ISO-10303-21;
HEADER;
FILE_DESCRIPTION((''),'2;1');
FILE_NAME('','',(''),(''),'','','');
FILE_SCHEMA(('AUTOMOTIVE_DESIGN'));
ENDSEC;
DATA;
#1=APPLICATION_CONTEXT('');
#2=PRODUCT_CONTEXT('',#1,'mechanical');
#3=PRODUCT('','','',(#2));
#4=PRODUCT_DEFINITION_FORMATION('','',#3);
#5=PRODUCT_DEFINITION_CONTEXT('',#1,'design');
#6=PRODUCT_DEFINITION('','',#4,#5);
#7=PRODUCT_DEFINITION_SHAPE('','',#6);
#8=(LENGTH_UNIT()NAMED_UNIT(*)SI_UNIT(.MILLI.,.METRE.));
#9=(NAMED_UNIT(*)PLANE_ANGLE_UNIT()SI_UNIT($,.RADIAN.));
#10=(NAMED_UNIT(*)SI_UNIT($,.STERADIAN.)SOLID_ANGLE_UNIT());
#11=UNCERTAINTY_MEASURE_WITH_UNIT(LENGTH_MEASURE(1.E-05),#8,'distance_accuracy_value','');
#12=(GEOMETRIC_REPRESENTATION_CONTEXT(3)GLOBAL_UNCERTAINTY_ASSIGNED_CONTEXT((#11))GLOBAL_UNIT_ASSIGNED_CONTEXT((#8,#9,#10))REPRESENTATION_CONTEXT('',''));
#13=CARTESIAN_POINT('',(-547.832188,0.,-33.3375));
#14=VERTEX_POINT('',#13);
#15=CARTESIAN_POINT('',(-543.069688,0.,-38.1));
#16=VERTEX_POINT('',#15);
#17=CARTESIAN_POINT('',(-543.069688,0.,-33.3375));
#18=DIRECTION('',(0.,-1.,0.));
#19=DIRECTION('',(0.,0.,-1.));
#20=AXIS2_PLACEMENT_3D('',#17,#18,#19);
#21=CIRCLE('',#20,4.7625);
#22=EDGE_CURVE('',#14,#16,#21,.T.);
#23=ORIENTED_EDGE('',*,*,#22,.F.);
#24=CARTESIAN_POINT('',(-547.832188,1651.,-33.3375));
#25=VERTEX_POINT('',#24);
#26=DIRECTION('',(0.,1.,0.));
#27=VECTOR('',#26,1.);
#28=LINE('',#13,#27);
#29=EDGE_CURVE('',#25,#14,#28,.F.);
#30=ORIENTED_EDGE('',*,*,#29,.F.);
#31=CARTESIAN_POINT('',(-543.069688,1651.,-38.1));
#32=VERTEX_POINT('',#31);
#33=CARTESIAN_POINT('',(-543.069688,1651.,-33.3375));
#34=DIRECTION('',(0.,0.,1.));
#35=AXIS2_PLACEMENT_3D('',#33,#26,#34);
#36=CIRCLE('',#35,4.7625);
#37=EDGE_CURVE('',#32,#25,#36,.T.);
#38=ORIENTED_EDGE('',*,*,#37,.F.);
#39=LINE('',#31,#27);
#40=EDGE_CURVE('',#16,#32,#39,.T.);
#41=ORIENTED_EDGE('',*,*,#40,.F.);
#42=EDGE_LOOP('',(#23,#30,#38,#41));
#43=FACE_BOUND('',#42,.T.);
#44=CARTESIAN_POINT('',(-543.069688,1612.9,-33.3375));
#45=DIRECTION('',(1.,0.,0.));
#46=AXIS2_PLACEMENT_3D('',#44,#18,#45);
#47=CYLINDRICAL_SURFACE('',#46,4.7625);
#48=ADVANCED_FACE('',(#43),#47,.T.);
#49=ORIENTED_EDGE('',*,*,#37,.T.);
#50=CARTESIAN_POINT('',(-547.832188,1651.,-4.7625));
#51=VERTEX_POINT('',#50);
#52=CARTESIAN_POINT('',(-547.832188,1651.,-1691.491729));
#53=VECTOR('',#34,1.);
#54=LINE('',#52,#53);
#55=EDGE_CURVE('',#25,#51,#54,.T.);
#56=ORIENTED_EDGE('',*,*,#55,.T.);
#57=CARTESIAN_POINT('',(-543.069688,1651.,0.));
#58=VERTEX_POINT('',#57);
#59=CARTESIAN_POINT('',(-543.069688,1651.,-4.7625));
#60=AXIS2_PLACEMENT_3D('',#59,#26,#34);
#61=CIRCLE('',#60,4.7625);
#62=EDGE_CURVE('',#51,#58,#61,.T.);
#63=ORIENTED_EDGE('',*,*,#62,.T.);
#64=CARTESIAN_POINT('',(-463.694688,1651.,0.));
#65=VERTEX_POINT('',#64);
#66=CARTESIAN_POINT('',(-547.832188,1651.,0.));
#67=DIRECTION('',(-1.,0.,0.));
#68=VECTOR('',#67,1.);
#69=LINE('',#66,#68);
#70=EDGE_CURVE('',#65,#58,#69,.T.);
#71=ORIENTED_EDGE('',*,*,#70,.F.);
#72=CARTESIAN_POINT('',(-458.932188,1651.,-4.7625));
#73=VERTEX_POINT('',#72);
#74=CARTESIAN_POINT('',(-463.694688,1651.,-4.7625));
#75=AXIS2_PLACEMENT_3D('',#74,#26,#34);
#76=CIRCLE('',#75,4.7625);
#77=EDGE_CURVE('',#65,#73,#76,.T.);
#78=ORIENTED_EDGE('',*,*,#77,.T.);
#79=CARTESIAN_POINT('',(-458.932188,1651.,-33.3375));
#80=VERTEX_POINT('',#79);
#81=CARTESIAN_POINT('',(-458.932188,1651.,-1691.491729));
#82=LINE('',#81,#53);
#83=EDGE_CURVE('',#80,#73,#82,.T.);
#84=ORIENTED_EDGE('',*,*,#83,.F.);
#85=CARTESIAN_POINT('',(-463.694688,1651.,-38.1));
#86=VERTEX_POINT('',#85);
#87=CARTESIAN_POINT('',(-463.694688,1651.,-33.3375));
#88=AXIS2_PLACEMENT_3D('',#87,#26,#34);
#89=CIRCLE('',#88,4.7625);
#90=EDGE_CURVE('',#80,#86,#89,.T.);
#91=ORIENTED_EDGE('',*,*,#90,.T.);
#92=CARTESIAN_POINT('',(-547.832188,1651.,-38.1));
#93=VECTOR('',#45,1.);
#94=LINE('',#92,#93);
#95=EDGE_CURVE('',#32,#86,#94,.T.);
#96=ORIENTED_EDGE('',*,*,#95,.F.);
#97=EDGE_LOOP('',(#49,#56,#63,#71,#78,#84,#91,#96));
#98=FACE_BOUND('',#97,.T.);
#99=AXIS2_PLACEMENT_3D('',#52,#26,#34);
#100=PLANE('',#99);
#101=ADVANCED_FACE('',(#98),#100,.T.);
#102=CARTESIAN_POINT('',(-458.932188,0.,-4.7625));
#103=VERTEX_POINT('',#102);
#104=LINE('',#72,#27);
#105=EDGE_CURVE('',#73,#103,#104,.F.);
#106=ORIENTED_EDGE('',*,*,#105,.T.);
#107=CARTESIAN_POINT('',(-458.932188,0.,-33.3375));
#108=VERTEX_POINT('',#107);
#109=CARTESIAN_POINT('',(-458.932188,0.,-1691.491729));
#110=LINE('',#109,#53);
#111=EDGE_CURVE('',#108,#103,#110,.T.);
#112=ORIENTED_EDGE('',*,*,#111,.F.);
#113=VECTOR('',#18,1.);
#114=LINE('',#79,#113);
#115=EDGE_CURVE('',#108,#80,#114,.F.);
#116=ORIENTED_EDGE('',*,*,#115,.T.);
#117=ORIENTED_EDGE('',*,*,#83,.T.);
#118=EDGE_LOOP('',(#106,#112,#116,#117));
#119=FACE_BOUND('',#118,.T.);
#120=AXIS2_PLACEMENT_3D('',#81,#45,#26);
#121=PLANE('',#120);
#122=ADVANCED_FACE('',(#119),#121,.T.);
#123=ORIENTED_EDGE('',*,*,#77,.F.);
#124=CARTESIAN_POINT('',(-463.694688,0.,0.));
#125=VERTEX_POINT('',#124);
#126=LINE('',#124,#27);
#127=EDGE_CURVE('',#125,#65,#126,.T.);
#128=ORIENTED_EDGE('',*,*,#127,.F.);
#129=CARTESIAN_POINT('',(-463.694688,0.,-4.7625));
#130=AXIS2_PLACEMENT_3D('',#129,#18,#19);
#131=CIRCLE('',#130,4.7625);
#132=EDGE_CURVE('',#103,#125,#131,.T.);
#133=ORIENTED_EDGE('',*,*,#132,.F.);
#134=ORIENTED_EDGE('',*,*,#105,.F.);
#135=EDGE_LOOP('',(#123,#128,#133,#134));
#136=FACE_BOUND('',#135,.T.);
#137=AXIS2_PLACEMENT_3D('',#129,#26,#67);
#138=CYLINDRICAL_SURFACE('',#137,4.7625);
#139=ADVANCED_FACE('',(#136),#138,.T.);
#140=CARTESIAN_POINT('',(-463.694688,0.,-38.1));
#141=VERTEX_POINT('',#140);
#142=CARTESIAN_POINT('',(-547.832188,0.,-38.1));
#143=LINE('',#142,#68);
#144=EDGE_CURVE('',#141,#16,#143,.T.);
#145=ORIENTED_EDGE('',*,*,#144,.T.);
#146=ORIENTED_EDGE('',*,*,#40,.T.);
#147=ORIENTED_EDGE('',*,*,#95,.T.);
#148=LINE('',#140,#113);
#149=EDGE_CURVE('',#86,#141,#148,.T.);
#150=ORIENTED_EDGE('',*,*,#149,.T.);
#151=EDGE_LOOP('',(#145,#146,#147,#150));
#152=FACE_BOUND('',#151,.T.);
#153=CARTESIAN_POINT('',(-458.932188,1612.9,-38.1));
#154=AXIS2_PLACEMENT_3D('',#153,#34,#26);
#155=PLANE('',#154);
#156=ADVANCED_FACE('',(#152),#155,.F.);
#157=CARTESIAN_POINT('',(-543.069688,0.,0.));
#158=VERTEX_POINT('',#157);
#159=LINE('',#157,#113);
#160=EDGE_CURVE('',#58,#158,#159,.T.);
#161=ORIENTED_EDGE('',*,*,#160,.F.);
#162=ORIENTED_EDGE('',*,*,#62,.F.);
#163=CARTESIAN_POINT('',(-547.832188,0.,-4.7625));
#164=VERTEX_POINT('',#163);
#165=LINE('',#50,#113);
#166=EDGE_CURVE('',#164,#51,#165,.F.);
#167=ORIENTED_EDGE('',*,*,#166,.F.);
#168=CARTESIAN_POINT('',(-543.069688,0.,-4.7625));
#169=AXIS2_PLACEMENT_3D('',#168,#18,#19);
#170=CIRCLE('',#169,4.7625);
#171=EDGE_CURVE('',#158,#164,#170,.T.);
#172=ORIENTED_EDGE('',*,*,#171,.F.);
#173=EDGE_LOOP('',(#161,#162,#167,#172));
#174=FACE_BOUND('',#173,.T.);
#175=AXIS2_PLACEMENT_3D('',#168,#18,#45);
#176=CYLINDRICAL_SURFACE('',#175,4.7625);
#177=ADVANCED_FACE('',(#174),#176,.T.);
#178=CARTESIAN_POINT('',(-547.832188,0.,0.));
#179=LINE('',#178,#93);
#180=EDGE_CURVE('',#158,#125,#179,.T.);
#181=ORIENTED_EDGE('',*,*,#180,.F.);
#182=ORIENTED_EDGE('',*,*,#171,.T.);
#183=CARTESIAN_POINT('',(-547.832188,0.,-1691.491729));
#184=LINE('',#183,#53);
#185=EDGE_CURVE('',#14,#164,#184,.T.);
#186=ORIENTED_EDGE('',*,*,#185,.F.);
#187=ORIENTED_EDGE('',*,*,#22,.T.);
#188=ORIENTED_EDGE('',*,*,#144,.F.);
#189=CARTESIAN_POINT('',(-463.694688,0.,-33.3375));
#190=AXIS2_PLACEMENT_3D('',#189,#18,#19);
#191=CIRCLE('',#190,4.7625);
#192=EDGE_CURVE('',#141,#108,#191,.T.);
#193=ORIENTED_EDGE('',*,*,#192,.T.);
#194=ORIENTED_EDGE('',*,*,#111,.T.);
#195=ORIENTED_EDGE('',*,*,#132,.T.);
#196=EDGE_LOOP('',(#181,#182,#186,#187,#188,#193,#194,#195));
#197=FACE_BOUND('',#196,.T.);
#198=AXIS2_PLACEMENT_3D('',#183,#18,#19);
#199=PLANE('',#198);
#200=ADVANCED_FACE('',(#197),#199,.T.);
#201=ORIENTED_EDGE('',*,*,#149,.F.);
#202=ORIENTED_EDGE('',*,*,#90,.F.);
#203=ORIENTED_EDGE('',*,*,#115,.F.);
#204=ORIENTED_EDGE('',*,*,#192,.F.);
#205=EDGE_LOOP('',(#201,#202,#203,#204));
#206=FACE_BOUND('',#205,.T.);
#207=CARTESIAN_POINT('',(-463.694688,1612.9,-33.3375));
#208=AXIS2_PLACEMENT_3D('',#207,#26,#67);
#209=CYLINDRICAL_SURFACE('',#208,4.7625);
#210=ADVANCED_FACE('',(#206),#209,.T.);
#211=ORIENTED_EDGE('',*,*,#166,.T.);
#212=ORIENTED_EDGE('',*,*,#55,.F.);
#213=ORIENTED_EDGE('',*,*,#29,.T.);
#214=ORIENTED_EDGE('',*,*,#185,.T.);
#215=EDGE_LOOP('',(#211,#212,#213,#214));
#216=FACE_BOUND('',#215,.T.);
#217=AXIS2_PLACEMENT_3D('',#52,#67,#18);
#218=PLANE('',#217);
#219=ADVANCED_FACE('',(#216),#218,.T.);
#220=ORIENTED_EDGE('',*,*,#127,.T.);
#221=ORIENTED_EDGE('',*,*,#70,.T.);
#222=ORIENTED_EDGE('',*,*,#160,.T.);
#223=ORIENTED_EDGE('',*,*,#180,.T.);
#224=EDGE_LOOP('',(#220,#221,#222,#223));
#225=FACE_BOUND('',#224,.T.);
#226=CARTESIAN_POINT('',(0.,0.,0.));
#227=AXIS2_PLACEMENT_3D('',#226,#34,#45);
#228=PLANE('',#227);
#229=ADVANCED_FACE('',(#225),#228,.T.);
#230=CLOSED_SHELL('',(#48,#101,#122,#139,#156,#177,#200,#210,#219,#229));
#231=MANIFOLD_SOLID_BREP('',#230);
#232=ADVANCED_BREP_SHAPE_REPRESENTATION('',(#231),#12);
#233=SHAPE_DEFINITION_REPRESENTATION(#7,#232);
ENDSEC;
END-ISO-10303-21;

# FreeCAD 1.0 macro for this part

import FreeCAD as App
import Part
import Sketcher
from FreeCAD import Vector
Q = App.Units.Quantity


def edges_at(feature, points):
    """Names of the edges that pass closest to the given points."""
    edges = feature.Shape.Edges
    near = lambda p: min(range(len(edges)), key=lambda i: edges[i].distToShape(Part.Vertex(*p))[0])
    return sorted({f"Edge{near(p) + 1}" for p in points})


def add_polygon(sketch, points):
    """Adds a closed chain of lines whose ends are joined by coincident constraints."""
    first, n = sketch.GeometryCount, len(points)
    for a, b in zip(points, points[1:] + points[:1]):
        sketch.addGeometry(Part.LineSegment(App.Vector(*a, 0), App.Vector(*b, 0)), False)
    for i in range(n):
        sketch.addConstraint(Sketcher.Constraint("Coincident", first + i, 2, first + (i + 1) % n, 1))

doc = App.newDocument("Part")
params = doc.addObject("Spreadsheet::Sheet", "Params")
for row, (alias, value) in enumerate([
    ("sketch1_height", "65 in"),
    ("sketch1_width", "3.5 in"),
    ("pad1_length", "1.5 in"),
    ("fillet_radius", "0.1875 in"),
], start=1):
    params.set(f"A{row}", alias)
    params.set(f"B{row}", "=" + value)
    params.setAlias(f"B{row}", alias)

body = doc.addObject("PartDesign::Body", "Body")

# Sketch on XY plane
sketch1 = body.newObject("Sketcher::SketchObject", "Sketch")
sketch1.AttachmentSupport = (doc.getObject("XY_Plane"), [""])
sketch1.MapMode = "FlatFace"
add_polygon(sketch1, [(-547.832188, 1651), (-547.832188, 0), (-458.932188, 0), (-458.932188, 1651)])  # lines 0-3
sketch1.addConstraint(Sketcher.Constraint("Vertical", 0))
sketch1.addConstraint(Sketcher.Constraint("Horizontal", 1))
sketch1.addConstraint(Sketcher.Constraint("Vertical", 2))
sketch1.addConstraint(Sketcher.Constraint("Horizontal", 3))
sketch1.addConstraint(Sketcher.Constraint("PointOnObject", 0, 2, -1))
sketch1.addConstraint(Sketcher.Constraint("DistanceY", 0, 2, 0, 1, Q("65 in")))
sketch1.addConstraint(Sketcher.Constraint("DistanceX", 1, 1, 1, 2, Q("3.5 in")))
sketch1.addConstraint(Sketcher.Constraint("DistanceX", 0, 2, -1, 1, Q("547.832188 mm")))
sketch1.setExpression("Constraints[9]", "Params.sketch1_height")
sketch1.setExpression("Constraints[10]", "Params.sketch1_width")
pad1 = body.newObject("PartDesign::Pad", "Pad")
pad1.Profile = sketch1
pad1.setExpression("Length", "Params.pad1_length")
pad1.Reversed = True
doc.recompute()

fillet = body.newObject("PartDesign::Fillet", "Fillet")
fillet.Base = (pad1, edges_at(pad1, [
    (-458.932, 825.5, -38.1),
    (-547.832, 825.5, -38.1),
    (-458.932, 825.5, 0),
    (-547.832, 825.5, 0),
]))
fillet.setExpression("Radius", "Params.fillet_radius")

doc.recompute()
